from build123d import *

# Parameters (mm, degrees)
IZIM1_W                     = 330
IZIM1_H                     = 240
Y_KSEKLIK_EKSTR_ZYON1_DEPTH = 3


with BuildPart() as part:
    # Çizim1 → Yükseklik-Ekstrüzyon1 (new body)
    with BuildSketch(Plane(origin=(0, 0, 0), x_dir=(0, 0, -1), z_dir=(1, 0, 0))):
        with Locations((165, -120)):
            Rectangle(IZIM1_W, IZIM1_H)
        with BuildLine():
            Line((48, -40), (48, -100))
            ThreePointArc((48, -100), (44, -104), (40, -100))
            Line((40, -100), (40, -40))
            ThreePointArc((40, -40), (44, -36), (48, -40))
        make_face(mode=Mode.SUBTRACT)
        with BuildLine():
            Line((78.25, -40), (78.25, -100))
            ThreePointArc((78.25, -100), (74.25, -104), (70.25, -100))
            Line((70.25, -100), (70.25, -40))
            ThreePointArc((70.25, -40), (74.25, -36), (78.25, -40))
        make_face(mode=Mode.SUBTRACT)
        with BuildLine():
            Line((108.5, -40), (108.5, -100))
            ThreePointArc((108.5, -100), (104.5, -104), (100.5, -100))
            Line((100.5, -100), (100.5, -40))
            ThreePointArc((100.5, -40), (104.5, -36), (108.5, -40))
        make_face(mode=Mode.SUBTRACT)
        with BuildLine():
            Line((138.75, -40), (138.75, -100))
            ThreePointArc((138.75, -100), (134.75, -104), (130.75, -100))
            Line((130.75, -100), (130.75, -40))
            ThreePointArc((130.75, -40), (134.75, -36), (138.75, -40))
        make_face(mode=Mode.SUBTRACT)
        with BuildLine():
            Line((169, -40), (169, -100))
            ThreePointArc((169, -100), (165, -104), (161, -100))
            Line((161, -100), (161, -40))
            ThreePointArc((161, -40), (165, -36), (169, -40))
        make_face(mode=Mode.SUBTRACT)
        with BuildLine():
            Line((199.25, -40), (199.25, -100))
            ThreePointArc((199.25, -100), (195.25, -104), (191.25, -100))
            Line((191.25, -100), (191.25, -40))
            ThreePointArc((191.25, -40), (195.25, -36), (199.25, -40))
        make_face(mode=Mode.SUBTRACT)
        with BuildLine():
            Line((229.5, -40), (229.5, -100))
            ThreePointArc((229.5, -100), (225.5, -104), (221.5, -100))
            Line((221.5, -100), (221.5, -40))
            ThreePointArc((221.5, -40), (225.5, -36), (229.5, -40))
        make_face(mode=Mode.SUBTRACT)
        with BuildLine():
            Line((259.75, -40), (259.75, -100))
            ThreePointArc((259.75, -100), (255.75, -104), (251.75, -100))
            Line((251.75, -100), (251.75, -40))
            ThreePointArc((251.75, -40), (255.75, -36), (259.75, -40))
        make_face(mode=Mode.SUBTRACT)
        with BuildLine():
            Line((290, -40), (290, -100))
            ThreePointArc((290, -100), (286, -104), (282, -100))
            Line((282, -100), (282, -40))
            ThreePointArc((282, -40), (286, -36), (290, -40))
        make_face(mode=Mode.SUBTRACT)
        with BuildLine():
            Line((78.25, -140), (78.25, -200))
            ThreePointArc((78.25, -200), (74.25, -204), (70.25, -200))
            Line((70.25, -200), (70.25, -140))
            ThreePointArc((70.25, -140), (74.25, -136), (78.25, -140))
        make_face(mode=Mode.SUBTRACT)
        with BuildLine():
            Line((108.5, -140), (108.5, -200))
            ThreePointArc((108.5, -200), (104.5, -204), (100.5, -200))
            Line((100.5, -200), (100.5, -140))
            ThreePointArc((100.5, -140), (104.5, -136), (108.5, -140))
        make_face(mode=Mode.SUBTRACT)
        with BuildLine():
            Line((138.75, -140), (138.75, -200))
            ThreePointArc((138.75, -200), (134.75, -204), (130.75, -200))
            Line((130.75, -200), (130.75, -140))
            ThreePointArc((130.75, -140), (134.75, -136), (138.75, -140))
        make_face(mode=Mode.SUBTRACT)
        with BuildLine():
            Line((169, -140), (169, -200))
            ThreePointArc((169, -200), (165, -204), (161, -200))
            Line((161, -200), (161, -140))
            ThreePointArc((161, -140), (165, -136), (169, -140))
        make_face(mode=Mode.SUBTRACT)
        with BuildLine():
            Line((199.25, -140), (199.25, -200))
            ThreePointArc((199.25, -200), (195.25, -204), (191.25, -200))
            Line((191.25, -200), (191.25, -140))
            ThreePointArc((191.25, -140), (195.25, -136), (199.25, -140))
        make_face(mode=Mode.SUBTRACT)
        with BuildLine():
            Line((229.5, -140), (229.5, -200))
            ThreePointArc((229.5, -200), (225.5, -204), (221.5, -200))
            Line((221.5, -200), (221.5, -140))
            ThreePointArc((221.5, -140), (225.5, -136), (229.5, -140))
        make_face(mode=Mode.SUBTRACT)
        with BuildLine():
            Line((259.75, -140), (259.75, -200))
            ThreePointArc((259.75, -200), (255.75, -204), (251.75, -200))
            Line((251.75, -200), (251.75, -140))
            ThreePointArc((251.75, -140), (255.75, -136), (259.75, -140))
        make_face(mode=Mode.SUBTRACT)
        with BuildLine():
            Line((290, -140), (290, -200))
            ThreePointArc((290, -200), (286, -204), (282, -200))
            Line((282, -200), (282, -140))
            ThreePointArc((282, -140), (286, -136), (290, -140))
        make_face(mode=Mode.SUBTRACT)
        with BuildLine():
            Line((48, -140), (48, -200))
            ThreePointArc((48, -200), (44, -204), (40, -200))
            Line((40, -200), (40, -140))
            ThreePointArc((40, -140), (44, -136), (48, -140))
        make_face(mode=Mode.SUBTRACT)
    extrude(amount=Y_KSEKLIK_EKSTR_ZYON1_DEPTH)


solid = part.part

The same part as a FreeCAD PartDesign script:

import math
import FreeCAD as App
import Part
import Sketcher

V = App.Vector
Q = App.Units.Quantity


def add_polygon(sketch, points):
    """Adds a closed chain of lines whose ends are joined by coincident constraints."""
    first, n = sketch.GeometryCount, len(points)
    for a, b in zip(points, points[1:] + points[:1]):
        sketch.addGeometry(Part.LineSegment(App.Vector(*a, 0), App.Vector(*b, 0)), False)
    for i in range(n):
        sketch.addConstraint(Sketcher.Constraint("Coincident", first + i, 2, first + (i + 1) % n, 1))

doc = App.newDocument("Part")
body = doc.addObject("PartDesign::Body", "Body")

# Sketch on YZ plane
sketch1 = body.newObject("Sketcher::SketchObject", "Sketch")
sketch1.AttachmentSupport = (doc.getObject("YZ_Plane"), [""])
sketch1.MapMode = "FlatFace"
add_polygon(sketch1, [(0, 0), (-240, 0), (-240, -330), (0, -330)])  # lines 0-3
sketch1.addGeometry(Part.ArcOfCircle(Part.Circle(V(-140, -44, 0), V(0, 0, 1), 4), math.radians(-90), math.radians(90)), False)  # 4
sketch1.addGeometry(Part.LineSegment(V(-140, -48, 0), V(-200, -48, 0)), False)  # 5
sketch1.addGeometry(Part.ArcOfCircle(Part.Circle(V(-200, -44, 0), V(0, 0, 1), 4), math.radians(90), math.radians(270)), False)  # 6
sketch1.addGeometry(Part.LineSegment(V(-200, -40, 0), V(-140, -40, 0)), False)  # 7
sketch1.addGeometry(Part.ArcOfCircle(Part.Circle(V(-140, -74.25, 0), V(0, 0, 1), 4), math.radians(-90), math.radians(90)), False)  # 8
sketch1.addGeometry(Part.LineSegment(V(-140, -78.25, 0), V(-200, -78.25, 0)), False)  # 9
sketch1.addGeometry(Part.ArcOfCircle(Part.Circle(V(-200, -74.25, 0), V(0, 0, 1), 4), math.radians(90), math.radians(270)), False)  # 10
sketch1.addGeometry(Part.LineSegment(V(-200, -70.25, 0), V(-140, -70.25, 0)), False)  # 11
sketch1.addGeometry(Part.ArcOfCircle(Part.Circle(V(-140, -104.5, 0), V(0, 0, 1), 4), math.radians(-90), math.radians(90)), False)  # 12
sketch1.addGeometry(Part.LineSegment(V(-140, -108.5, 0), V(-200, -108.5, 0)), False)  # 13
sketch1.addGeometry(Part.ArcOfCircle(Part.Circle(V(-200, -104.5, 0), V(0, 0, 1), 4), math.radians(90), math.radians(270)), False)  # 14
sketch1.addGeometry(Part.LineSegment(V(-200, -100.5, 0), V(-140, -100.5, 0)), False)  # 15
sketch1.addGeometry(Part.ArcOfCircle(Part.Circle(V(-140, -134.75, 0), V(0, 0, 1), 4), math.radians(-90), math.radians(90)), False)  # 16
sketch1.addGeometry(Part.LineSegment(V(-140, -138.75, 0), V(-200, -138.75, 0)), False)  # 17
sketch1.addGeometry(Part.ArcOfCircle(Part.Circle(V(-200, -134.75, 0), V(0, 0, 1), 4), math.radians(90), math.radians(270)), False)  # 18
sketch1.addGeometry(Part.LineSegment(V(-200, -130.75, 0), V(-140, -130.75, 0)), False)  # 19
sketch1.addGeometry(Part.ArcOfCircle(Part.Circle(V(-140, -165, 0), V(0, 0, 1), 4), math.radians(-90), math.radians(90)), False)  # 20
sketch1.addGeometry(Part.LineSegment(V(-140, -169, 0), V(-200, -169, 0)), False)  # 21
sketch1.addGeometry(Part.ArcOfCircle(Part.Circle(V(-200, -165, 0), V(0, 0, 1), 4), math.radians(90), math.radians(270)), False)  # 22
sketch1.addGeometry(Part.LineSegment(V(-200, -161, 0), V(-140, -161, 0)), False)  # 23
sketch1.addGeometry(Part.ArcOfCircle(Part.Circle(V(-140, -195.25, 0), V(0, 0, 1), 4), math.radians(-90), math.radians(90)), False)  # 24
sketch1.addGeometry(Part.LineSegment(V(-140, -199.25, 0), V(-200, -199.25, 0)), False)  # 25
sketch1.addGeometry(Part.ArcOfCircle(Part.Circle(V(-200, -195.25, 0), V(0, 0, 1), 4), math.radians(90), math.radians(270)), False)  # 26
sketch1.addGeometry(Part.LineSegment(V(-200, -191.25, 0), V(-140, -191.25, 0)), False)  # 27
sketch1.addGeometry(Part.ArcOfCircle(Part.Circle(V(-140, -225.5, 0), V(0, 0, 1), 4), math.radians(-90), math.radians(90)), False)  # 28
sketch1.addGeometry(Part.LineSegment(V(-140, -229.5, 0), V(-200, -229.5, 0)), False)  # 29
sketch1.addGeometry(Part.ArcOfCircle(Part.Circle(V(-200, -225.5, 0), V(0, 0, 1), 4), math.radians(90), math.radians(270)), False)  # 30
sketch1.addGeometry(Part.LineSegment(V(-200, -221.5, 0), V(-140, -221.5, 0)), False)  # 31
sketch1.addGeometry(Part.ArcOfCircle(Part.Circle(V(-140, -255.75, 0), V(0, 0, 1), 4), math.radians(-90), math.radians(90)), False)  # 32
sketch1.addGeometry(Part.LineSegment(V(-140, -259.75, 0), V(-200, -259.75, 0)), False)  # 33
sketch1.addGeometry(Part.ArcOfCircle(Part.Circle(V(-200, -255.75, 0), V(0, 0, 1), 4), math.radians(90), math.radians(270)), False)  # 34
sketch1.addGeometry(Part.LineSegment(V(-200, -251.75, 0), V(-140, -251.75, 0)), False)  # 35
sketch1.addGeometry(Part.ArcOfCircle(Part.Circle(V(-140, -286, 0), V(0, 0, 1), 4), math.radians(-90), math.radians(90)), False)  # 36
sketch1.addGeometry(Part.LineSegment(V(-140, -290, 0), V(-200, -290, 0)), False)  # 37
sketch1.addGeometry(Part.ArcOfCircle(Part.Circle(V(-200, -286, 0), V(0, 0, 1), 4), math.radians(90), math.radians(270)), False)  # 38
sketch1.addGeometry(Part.LineSegment(V(-200, -282, 0), V(-140, -282, 0)), False)  # 39
sketch1.addGeometry(Part.ArcOfCircle(Part.Circle(V(-40, -44, 0), V(0, 0, 1), 4), math.radians(-90), math.radians(90)), False)  # 40
sketch1.addGeometry(Part.LineSegment(V(-40, -48, 0), V(-100, -48, 0)), False)  # 41
sketch1.addGeometry(Part.ArcOfCircle(Part.Circle(V(-100, -44, 0), V(0, 0, 1), 4), math.radians(90), math.radians(270)), False)  # 42
sketch1.addGeometry(Part.LineSegment(V(-100, -40, 0), V(-40, -40, 0)), False)  # 43
sketch1.addGeometry(Part.ArcOfCircle(Part.Circle(V(-40, -74.25, 0), V(0, 0, 1), 4), math.radians(-90), math.radians(90)), False)  # 44
sketch1.addGeometry(Part.LineSegment(V(-40, -78.25, 0), V(-100, -78.25, 0)), False)  # 45
sketch1.addGeometry(Part.ArcOfCircle(Part.Circle(V(-100, -74.25, 0), V(0, 0, 1), 4), math.radians(90), math.radians(270)), False)  # 46
sketch1.addGeometry(Part.LineSegment(V(-100, -70.25, 0), V(-40, -70.25, 0)), False)  # 47
sketch1.addGeometry(Part.ArcOfCircle(Part.Circle(V(-40, -104.5, 0), V(0, 0, 1), 4), math.radians(-90), math.radians(90)), False)  # 48
sketch1.addGeometry(Part.LineSegment(V(-40, -108.5, 0), V(-100, -108.5, 0)), False)  # 49
sketch1.addGeometry(Part.ArcOfCircle(Part.Circle(V(-100, -104.5, 0), V(0, 0, 1), 4), math.radians(90), math.radians(270)), False)  # 50
sketch1.addGeometry(Part.LineSegment(V(-100, -100.5, 0), V(-40, -100.5, 0)), False)  # 51
sketch1.addGeometry(Part.ArcOfCircle(Part.Circle(V(-40, -134.75, 0), V(0, 0, 1), 4), math.radians(-90), math.radians(90)), False)  # 52
sketch1.addGeometry(Part.LineSegment(V(-40, -138.75, 0), V(-100, -138.75, 0)), False)  # 53
sketch1.addGeometry(Part.ArcOfCircle(Part.Circle(V(-100, -134.75, 0), V(0, 0, 1), 4), math.radians(90), math.radians(270)), False)  # 54
sketch1.addGeometry(Part.LineSegment(V(-100, -130.75, 0), V(-40, -130.75, 0)), False)  # 55
sketch1.addGeometry(Part.ArcOfCircle(Part.Circle(V(-40, -165, 0), V(0, 0, 1), 4), math.radians(-90), math.radians(90)), False)  # 56
sketch1.addGeometry(Part.LineSegment(V(-40, -169, 0), V(-100, -169, 0)), False)  # 57
sketch1.addGeometry(Part.ArcOfCircle(Part.Circle(V(-100, -165, 0), V(0, 0, 1), 4), math.radians(90), math.radians(270)), False)  # 58
sketch1.addGeometry(Part.LineSegment(V(-100, -161, 0), V(-40, -161, 0)), False)  # 59
sketch1.addGeometry(Part.ArcOfCircle(Part.Circle(V(-40, -195.25, 0), V(0, 0, 1), 4), math.radians(-90), math.radians(90)), False)  # 60
sketch1.addGeometry(Part.LineSegment(V(-40, -199.25, 0), V(-100, -199.25, 0)), False)  # 61
sketch1.addGeometry(Part.ArcOfCircle(Part.Circle(V(-100, -195.25, 0), V(0, 0, 1), 4), math.radians(90), math.radians(270)), False)  # 62
sketch1.addGeometry(Part.LineSegment(V(-100, -191.25, 0), V(-40, -191.25, 0)), False)  # 63
sketch1.addGeometry(Part.ArcOfCircle(Part.Circle(V(-40, -225.5, 0), V(0, 0, 1), 4), math.radians(-90), math.radians(90)), False)  # 64
sketch1.addGeometry(Part.LineSegment(V(-40, -229.5, 0), V(-100, -229.5, 0)), False)  # 65
sketch1.addGeometry(Part.ArcOfCircle(Part.Circle(V(-100, -225.5, 0), V(0, 0, 1), 4), math.radians(90), math.radians(270)), False)  # 66
sketch1.addGeometry(Part.LineSegment(V(-100, -221.5, 0), V(-40, -221.5, 0)), False)  # 67
sketch1.addGeometry(Part.ArcOfCircle(Part.Circle(V(-40, -255.75, 0), V(0, 0, 1), 4), math.radians(-90), math.radians(90)), False)  # 68
sketch1.addGeometry(Part.LineSegment(V(-40, -259.75, 0), V(-100, -259.75, 0)), False)  # 69
sketch1.addGeometry(Part.ArcOfCircle(Part.Circle(V(-100, -255.75, 0), V(0, 0, 1), 4), math.radians(90), math.radians(270)), False)  # 70
sketch1.addGeometry(Part.LineSegment(V(-100, -251.75, 0), V(-40, -251.75, 0)), False)  # 71
sketch1.addGeometry(Part.ArcOfCircle(Part.Circle(V(-40, -286, 0), V(0, 0, 1), 4), math.radians(-90), math.radians(90)), False)  # 72
sketch1.addGeometry(Part.LineSegment(V(-40, -290, 0), V(-100, -290, 0)), False)  # 73
sketch1.addGeometry(Part.ArcOfCircle(Part.Circle(V(-100, -286, 0), V(0, 0, 1), 4), math.radians(90), math.radians(270)), False)  # 74
sketch1.addGeometry(Part.LineSegment(V(-100, -282, 0), V(-40, -282, 0)), False)  # 75
sketch1.addConstraint([
    Sketcher.Constraint("Tangent", 4, 1, 5, 1),
    Sketcher.Constraint("Tangent", 5, 2, 6, 2),
    Sketcher.Constraint("Tangent", 6, 1, 7, 1),
    Sketcher.Constraint("Tangent", 7, 2, 4, 2),
    Sketcher.Constraint("Tangent", 8, 1, 9, 1),
    Sketcher.Constraint("Tangent", 9, 2, 10, 2),
    Sketcher.Constraint("Tangent", 10, 1, 11, 1),
    Sketcher.Constraint("Tangent", 11, 2, 8, 2),
    Sketcher.Constraint("Tangent", 12, 1, 13, 1),
    Sketcher.Constraint("Tangent", 13, 2, 14, 2),
    Sketcher.Constraint("Tangent", 14, 1, 15, 1),
    Sketcher.Constraint("Tangent", 15, 2, 12, 2),
    Sketcher.Constraint("Tangent", 16, 1, 17, 1),
    Sketcher.Constraint("Tangent", 17, 2, 18, 2),
    Sketcher.Constraint("Tangent", 18, 1, 19, 1),
    Sketcher.Constraint("Tangent", 19, 2, 16, 2),
    Sketcher.Constraint("Tangent", 20, 1, 21, 1),
    Sketcher.Constraint("Tangent", 21, 2, 22, 2),
    Sketcher.Constraint("Tangent", 22, 1, 23, 1),
    Sketcher.Constraint("Tangent", 23, 2, 20, 2),
    Sketcher.Constraint("Tangent", 24, 1, 25, 1),
    Sketcher.Constraint("Tangent", 25, 2, 26, 2),
    Sketcher.Constraint("Tangent", 26, 1, 27, 1),
    Sketcher.Constraint("Tangent", 27, 2, 24, 2),
    Sketcher.Constraint("Tangent", 28, 1, 29, 1),
    Sketcher.Constraint("Tangent", 29, 2, 30, 2),
    Sketcher.Constraint("Tangent", 30, 1, 31, 1),
    Sketcher.Constraint("Tangent", 31, 2, 28, 2),
    Sketcher.Constraint("Tangent", 32, 1, 33, 1),
    Sketcher.Constraint("Tangent", 33, 2, 34, 2),
    Sketcher.Constraint("Tangent", 34, 1, 35, 1),
    Sketcher.Constraint("Tangent", 35, 2, 32, 2),
    Sketcher.Constraint("Tangent", 36, 1, 37, 1),
    Sketcher.Constraint("Tangent", 37, 2, 38, 2),
    Sketcher.Constraint("Tangent", 38, 1, 39, 1),
    Sketcher.Constraint("Tangent", 39, 2, 36, 2),
    Sketcher.Constraint("Tangent", 40, 1, 41, 1),
    Sketcher.Constraint("Tangent", 41, 2, 42, 2),
    Sketcher.Constraint("Tangent", 42, 1, 43, 1),
    Sketcher.Constraint("Tangent", 43, 2, 40, 2),
    Sketcher.Constraint("Tangent", 44, 1, 45, 1),
    Sketcher.Constraint("Tangent", 45, 2, 46, 2),
    Sketcher.Constraint("Tangent", 46, 1, 47, 1),
    Sketcher.Constraint("Tangent", 47, 2, 44, 2),
    Sketcher.Constraint("Tangent", 48, 1, 49, 1),
    Sketcher.Constraint("Tangent", 49, 2, 50, 2),
    Sketcher.Constraint("Tangent", 50, 1, 51, 1),
    Sketcher.Constraint("Tangent", 51, 2, 48, 2),
    Sketcher.Constraint("Tangent", 52, 1, 53, 1),
    Sketcher.Constraint("Tangent", 53, 2, 54, 2),
    Sketcher.Constraint("Tangent", 54, 1, 55, 1),
    Sketcher.Constraint("Tangent", 55, 2, 52, 2),
    Sketcher.Constraint("Tangent", 56, 1, 57, 1),
    Sketcher.Constraint("Tangent", 57, 2, 58, 2),
    Sketcher.Constraint("Tangent", 58, 1, 59, 1),
    Sketcher.Constraint("Tangent", 59, 2, 56, 2),
    Sketcher.Constraint("Tangent", 60, 1, 61, 1),
    Sketcher.Constraint("Tangent", 61, 2, 62, 2),
    Sketcher.Constraint("Tangent", 62, 1, 63, 1),
    Sketcher.Constraint("Tangent", 63, 2, 60, 2),
    Sketcher.Constraint("Tangent", 64, 1, 65, 1),
    Sketcher.Constraint("Tangent", 65, 2, 66, 2),
    Sketcher.Constraint("Tangent", 66, 1, 67, 1),
    Sketcher.Constraint("Tangent", 67, 2, 64, 2),
    Sketcher.Constraint("Tangent", 68, 1, 69, 1),
    Sketcher.Constraint("Tangent", 69, 2, 70, 2),
    Sketcher.Constraint("Tangent", 70, 1, 71, 1),
    Sketcher.Constraint("Tangent", 71, 2, 68, 2),
    Sketcher.Constraint("Tangent", 72, 1, 73, 1),
    Sketcher.Constraint("Tangent", 73, 2, 74, 2),
    Sketcher.Constraint("Tangent", 74, 1, 75, 1),
    Sketcher.Constraint("Tangent", 75, 2, 72, 2),
    Sketcher.Constraint("Horizontal", 0),
    Sketcher.Constraint("Vertical", 1),
    Sketcher.Constraint("Horizontal", 2),
    Sketcher.Constraint("Vertical", 3),
    Sketcher.Constraint("Horizontal", 5),
    Sketcher.Constraint("Horizontal", 7),
    Sketcher.Constraint("Horizontal", 9),
    Sketcher.Constraint("Horizontal", 11),
    Sketcher.Constraint("Horizontal", 13),
    Sketcher.Constraint("Horizontal", 15),
    Sketcher.Constraint("Horizontal", 17),
    Sketcher.Constraint("Horizontal", 19),
    Sketcher.Constraint("Horizontal", 21),
    Sketcher.Constraint("Horizontal", 23),
    Sketcher.Constraint("Horizontal", 25),
    Sketcher.Constraint("Horizontal", 27),
    Sketcher.Constraint("Horizontal", 29),
    Sketcher.Constraint("Horizontal", 31),
    Sketcher.Constraint("Horizontal", 33),
    Sketcher.Constraint("Horizontal", 35),
    Sketcher.Constraint("Horizontal", 37),
    Sketcher.Constraint("Horizontal", 39),
    Sketcher.Constraint("Horizontal", 41),
    Sketcher.Constraint("Horizontal", 43),
    Sketcher.Constraint("Horizontal", 45),
    Sketcher.Constraint("Horizontal", 47),
    Sketcher.Constraint("Horizontal", 49),
    Sketcher.Constraint("Horizontal", 51),
    Sketcher.Constraint("Horizontal", 53),
    Sketcher.Constraint("Horizontal", 55),
    Sketcher.Constraint("Horizontal", 57),
    Sketcher.Constraint("Horizontal", 59),
    Sketcher.Constraint("Horizontal", 61),
    Sketcher.Constraint("Horizontal", 63),
    Sketcher.Constraint("Horizontal", 65),
    Sketcher.Constraint("Horizontal", 67),
    Sketcher.Constraint("Horizontal", 69),
    Sketcher.Constraint("Horizontal", 71),
    Sketcher.Constraint("Horizontal", 73),
    Sketcher.Constraint("Horizontal", 75),
    Sketcher.Constraint("Coincident", 3, 2, -1, 1),
    Sketcher.Constraint("Equal", 6, 8),
    Sketcher.Constraint("Equal", 10, 12),
    Sketcher.Constraint("Equal", 14, 16),
    Sketcher.Constraint("Equal", 18, 20),
    Sketcher.Constraint("Equal", 22, 24),
    Sketcher.Constraint("Equal", 26, 28),
    Sketcher.Constraint("Equal", 30, 32),
    Sketcher.Constraint("Equal", 34, 36),
    Sketcher.Constraint("Equal", 38, 40),
    Sketcher.Constraint("Equal", 42, 44),
    Sketcher.Constraint("Equal", 46, 48),
    Sketcher.Constraint("Equal", 50, 52),
    Sketcher.Constraint("Equal", 54, 56),
    Sketcher.Constraint("Equal", 58, 60),
    Sketcher.Constraint("Equal", 62, 64),
    Sketcher.Constraint("Equal", 66, 68),
    Sketcher.Constraint("Equal", 70, 72),
    Sketcher.Constraint("Horizontal", 6, 3, 40, 3),
    Sketcher.Constraint("Horizontal", 10, 3, 44, 3),
    Sketcher.Constraint("Horizontal", 14, 3, 48, 3),
    Sketcher.Constraint("Horizontal", 18, 3, 52, 3),
    Sketcher.Constraint("Horizontal", 22, 3, 56, 3),
    Sketcher.Constraint("Horizontal", 26, 3, 60, 3),
    Sketcher.Constraint("Horizontal", 30, 3, 64, 3),
    Sketcher.Constraint("Horizontal", 34, 3, 68, 3),
    Sketcher.Constraint("Horizontal", 38, 3, 72, 3),
    Sketcher.Constraint("Vertical", 4, 3, 8, 3),
    Sketcher.Constraint("Vertical", 6, 3, 10, 3),
    Sketcher.Constraint("Vertical", 8, 3, 12, 3),
    Sketcher.Constraint("Vertical", 10, 3, 14, 3),
    Sketcher.Constraint("Vertical", 12, 3, 16, 3),
    Sketcher.Constraint("Vertical", 14, 3, 18, 3),
    Sketcher.Constraint("Vertical", 16, 3, 20, 3),
    Sketcher.Constraint("Vertical", 18, 3, 22, 3),
    Sketcher.Constraint("Vertical", 20, 3, 24, 3),
    Sketcher.Constraint("Vertical", 22, 3, 26, 3),
    Sketcher.Constraint("Vertical", 24, 3, 28, 3),
    Sketcher.Constraint("Vertical", 26, 3, 30, 3),
    Sketcher.Constraint("Vertical", 28, 3, 32, 3),
    Sketcher.Constraint("Vertical", 30, 3, 34, 3),
    Sketcher.Constraint("Vertical", 32, 3, 36, 3),
    Sketcher.Constraint("Vertical", 34, 3, 38, 3),
    Sketcher.Constraint("Vertical", 40, 3, 44, 3),
    Sketcher.Constraint("Vertical", 42, 3, 46, 3),
    Sketcher.Constraint("Vertical", 44, 3, 48, 3),
    Sketcher.Constraint("Vertical", 46, 3, 50, 3),
    Sketcher.Constraint("Vertical", 48, 3, 52, 3),
    Sketcher.Constraint("Vertical", 50, 3, 54, 3),
    Sketcher.Constraint("Vertical", 52, 3, 56, 3),
    Sketcher.Constraint("Vertical", 54, 3, 58, 3),
    Sketcher.Constraint("Vertical", 56, 3, 60, 3),
    Sketcher.Constraint("Vertical", 58, 3, 62, 3),
    Sketcher.Constraint("Vertical", 60, 3, 64, 3),
    Sketcher.Constraint("Vertical", 62, 3, 66, 3),
    Sketcher.Constraint("Vertical", 64, 3, 68, 3),
    Sketcher.Constraint("Vertical", 66, 3, 70, 3),
    Sketcher.Constraint("Vertical", 68, 3, 72, 3),
    Sketcher.Constraint("Vertical", 70, 3, 74, 3),
    Sketcher.Constraint("Equal", 39, 41),
    Sketcher.Constraint("Radius", 4, Q("4 mm")),
    Sketcher.Constraint("DistanceX", 0, 2, 0, 1, Q("240 mm")),
    Sketcher.Constraint("DistanceX", 5, 2, 5, 1, Q("60 mm")),
    Sketcher.Constraint("DistanceY", 1, 2, 1, 1, Q("330 mm")),
    Sketcher.Constraint("DistanceX", 4, 3, -1, 1, Q("140 mm")),
    Sketcher.Constraint("DistanceY", 4, 3, -1, 1, Q("44 mm")),
    Sketcher.Constraint("DistanceY", 20, 3, -1, 1, Q("165 mm")),
    Sketcher.Constraint("DistanceY", 36, 3, -1, 1, Q("286 mm")),
    Sketcher.Constraint("DistanceX", 40, 3, -1, 1, Q("40 mm")),
    Sketcher.Constraint("DistanceY", 12, 3, -1, 1, Q("104.5 mm")),
    Sketcher.Constraint("DistanceY", 28, 3, -1, 1, Q("225.5 mm")),
    Sketcher.Constraint("DistanceY", 8, 3, -1, 1, Q("74.25 mm")),
    Sketcher.Constraint("DistanceY", 16, 3, -1, 1, Q("134.75 mm")),
    Sketcher.Constraint("DistanceY", 24, 3, -1, 1, Q("195.25 mm")),
    Sketcher.Constraint("DistanceY", 32, 3, -1, 1, Q("255.75 mm")),
])
pad1 = body.newObject("PartDesign::Pad", "Pad")
pad1.Profile = sketch1
pad1.Length = 3

doc.recompute()
